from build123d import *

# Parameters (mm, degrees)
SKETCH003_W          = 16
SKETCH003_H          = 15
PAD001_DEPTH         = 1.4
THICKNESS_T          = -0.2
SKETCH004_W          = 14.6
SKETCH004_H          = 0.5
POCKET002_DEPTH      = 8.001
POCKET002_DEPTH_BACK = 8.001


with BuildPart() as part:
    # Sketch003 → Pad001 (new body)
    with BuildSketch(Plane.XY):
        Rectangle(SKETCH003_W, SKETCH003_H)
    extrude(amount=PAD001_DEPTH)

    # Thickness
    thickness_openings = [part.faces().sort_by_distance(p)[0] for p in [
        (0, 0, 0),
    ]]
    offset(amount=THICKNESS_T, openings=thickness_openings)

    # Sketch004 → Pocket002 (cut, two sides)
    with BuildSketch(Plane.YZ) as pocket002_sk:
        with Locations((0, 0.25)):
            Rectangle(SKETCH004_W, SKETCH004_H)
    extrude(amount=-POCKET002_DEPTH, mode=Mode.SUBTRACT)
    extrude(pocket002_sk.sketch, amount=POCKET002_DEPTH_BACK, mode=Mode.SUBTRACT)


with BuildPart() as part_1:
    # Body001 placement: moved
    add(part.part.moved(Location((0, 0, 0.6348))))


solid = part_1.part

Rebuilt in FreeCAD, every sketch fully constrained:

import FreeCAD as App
import Part
import Sketcher
from FreeCAD import Vector
Q = App.Units.Quantity


def faces_at(feature, points):
    """Names of the faces that lie closest to the given points."""
    faces = feature.Shape.Faces
    near = lambda p: min(range(len(faces)), key=lambda i: faces[i].distToShape(Part.Vertex(*p))[0])
    return sorted({f"Face{near(p) + 1}" for p in points})


def add_polygon(sketch, points):
    """Adds a closed chain of lines whose ends are joined by coincident constraints."""
    first, n = sketch.GeometryCount, len(points)
    for a, b in zip(points, points[1:] + points[:1]):
        sketch.addGeometry(Part.LineSegment(App.Vector(*a, 0), App.Vector(*b, 0)), False)
    for i in range(n):
        sketch.addConstraint(Sketcher.Constraint("Coincident", first + i, 2, first + (i + 1) % n, 1))

doc = App.newDocument("Part")
body = doc.addObject("PartDesign::Body", "Body")

# Sketch on XY plane
sketch1 = doc.addObject("Sketcher::SketchObject", "Sketch")
body.addObject(sketch1)
sketch1.AttachmentSupport = (doc.XY_Plane, [""])
sketch1.MapMode = "FlatFace"
add_polygon(sketch1, [(-8, 8), (-8, -8), (8, -8), (8, 8)])  # lines 0-3
sketch1.addConstraint([
    Sketcher.Constraint("Vertical", 0),
    Sketcher.Constraint("Horizontal", 1),
    Sketcher.Constraint("Vertical", 2),
    Sketcher.Constraint("Horizontal", 3),
    Sketcher.Constraint("Symmetric", 0, 2, 2, 2, -1, 1),
    Sketcher.Constraint("DistanceX", 1, 1, 1, 2, Q("16 mm")),
    Sketcher.Constraint("DistanceY", 0, 2, 0, 1, Q("15 mm")),
])
pad1 = doc.addObject("PartDesign::Pad", "Pad")
body.addObject(pad1)
pad1.Profile = sketch1
pad1.Length = 1.4
doc.recompute()

thickness = doc.addObject("PartDesign::Thickness", "Thickness")
body.addObject(thickness)
thickness.Base = (pad1, faces_at(pad1, [(0, 0, 0)]))
thickness.Value = 0.2
thickness.Reversed = True
thickness.Join = "Arc"

# Sketch on YZ plane
sketch2 = doc.addObject("Sketcher::SketchObject", "Sketch001")
body.addObject(sketch2)
sketch2.AttachmentSupport = (doc.YZ_Plane, [""])
sketch2.MapMode = "FlatFace"
add_polygon(sketch2, [(-7.3, 0.5), (-7.3, 0), (7.3, 0), (7.3, 0.5)])  # lines 0-3
sketch2.addConstraint([
    Sketcher.Constraint("Vertical", 0),
    Sketcher.Constraint("Horizontal", 1),
    Sketcher.Constraint("Vertical", 2),
    Sketcher.Constraint("Horizontal", 3),
    Sketcher.Constraint("Symmetric", 0, 2, 1, 2, -1, 1),
    Sketcher.Constraint("DistanceX", 1, 1, 1, 2, Q("14.6 mm")),
    Sketcher.Constraint("DistanceY", 0, 2, 0, 1, Q("0.5 mm")),
])
pocket1 = doc.addObject("PartDesign::Pocket", "Pocket")
body.addObject(pocket1)
pocket1.Profile = sketch2
pocket1.Type = "ThroughAll"
pocket1.Midplane = True
body2 = doc.addObject("PartDesign::Body", "Body001")
doc.recompute()

body.Placement = App.Placement(Vector(0, 0, 0.6348), App.Rotation(Vector(0, 0, 1), 0))
boolean = doc.addObject("PartDesign::Boolean", "Boolean")
body2.addObject(boolean)
boolean.Type = "Fuse"
boolean.addObjects([body])

doc.recompute()
